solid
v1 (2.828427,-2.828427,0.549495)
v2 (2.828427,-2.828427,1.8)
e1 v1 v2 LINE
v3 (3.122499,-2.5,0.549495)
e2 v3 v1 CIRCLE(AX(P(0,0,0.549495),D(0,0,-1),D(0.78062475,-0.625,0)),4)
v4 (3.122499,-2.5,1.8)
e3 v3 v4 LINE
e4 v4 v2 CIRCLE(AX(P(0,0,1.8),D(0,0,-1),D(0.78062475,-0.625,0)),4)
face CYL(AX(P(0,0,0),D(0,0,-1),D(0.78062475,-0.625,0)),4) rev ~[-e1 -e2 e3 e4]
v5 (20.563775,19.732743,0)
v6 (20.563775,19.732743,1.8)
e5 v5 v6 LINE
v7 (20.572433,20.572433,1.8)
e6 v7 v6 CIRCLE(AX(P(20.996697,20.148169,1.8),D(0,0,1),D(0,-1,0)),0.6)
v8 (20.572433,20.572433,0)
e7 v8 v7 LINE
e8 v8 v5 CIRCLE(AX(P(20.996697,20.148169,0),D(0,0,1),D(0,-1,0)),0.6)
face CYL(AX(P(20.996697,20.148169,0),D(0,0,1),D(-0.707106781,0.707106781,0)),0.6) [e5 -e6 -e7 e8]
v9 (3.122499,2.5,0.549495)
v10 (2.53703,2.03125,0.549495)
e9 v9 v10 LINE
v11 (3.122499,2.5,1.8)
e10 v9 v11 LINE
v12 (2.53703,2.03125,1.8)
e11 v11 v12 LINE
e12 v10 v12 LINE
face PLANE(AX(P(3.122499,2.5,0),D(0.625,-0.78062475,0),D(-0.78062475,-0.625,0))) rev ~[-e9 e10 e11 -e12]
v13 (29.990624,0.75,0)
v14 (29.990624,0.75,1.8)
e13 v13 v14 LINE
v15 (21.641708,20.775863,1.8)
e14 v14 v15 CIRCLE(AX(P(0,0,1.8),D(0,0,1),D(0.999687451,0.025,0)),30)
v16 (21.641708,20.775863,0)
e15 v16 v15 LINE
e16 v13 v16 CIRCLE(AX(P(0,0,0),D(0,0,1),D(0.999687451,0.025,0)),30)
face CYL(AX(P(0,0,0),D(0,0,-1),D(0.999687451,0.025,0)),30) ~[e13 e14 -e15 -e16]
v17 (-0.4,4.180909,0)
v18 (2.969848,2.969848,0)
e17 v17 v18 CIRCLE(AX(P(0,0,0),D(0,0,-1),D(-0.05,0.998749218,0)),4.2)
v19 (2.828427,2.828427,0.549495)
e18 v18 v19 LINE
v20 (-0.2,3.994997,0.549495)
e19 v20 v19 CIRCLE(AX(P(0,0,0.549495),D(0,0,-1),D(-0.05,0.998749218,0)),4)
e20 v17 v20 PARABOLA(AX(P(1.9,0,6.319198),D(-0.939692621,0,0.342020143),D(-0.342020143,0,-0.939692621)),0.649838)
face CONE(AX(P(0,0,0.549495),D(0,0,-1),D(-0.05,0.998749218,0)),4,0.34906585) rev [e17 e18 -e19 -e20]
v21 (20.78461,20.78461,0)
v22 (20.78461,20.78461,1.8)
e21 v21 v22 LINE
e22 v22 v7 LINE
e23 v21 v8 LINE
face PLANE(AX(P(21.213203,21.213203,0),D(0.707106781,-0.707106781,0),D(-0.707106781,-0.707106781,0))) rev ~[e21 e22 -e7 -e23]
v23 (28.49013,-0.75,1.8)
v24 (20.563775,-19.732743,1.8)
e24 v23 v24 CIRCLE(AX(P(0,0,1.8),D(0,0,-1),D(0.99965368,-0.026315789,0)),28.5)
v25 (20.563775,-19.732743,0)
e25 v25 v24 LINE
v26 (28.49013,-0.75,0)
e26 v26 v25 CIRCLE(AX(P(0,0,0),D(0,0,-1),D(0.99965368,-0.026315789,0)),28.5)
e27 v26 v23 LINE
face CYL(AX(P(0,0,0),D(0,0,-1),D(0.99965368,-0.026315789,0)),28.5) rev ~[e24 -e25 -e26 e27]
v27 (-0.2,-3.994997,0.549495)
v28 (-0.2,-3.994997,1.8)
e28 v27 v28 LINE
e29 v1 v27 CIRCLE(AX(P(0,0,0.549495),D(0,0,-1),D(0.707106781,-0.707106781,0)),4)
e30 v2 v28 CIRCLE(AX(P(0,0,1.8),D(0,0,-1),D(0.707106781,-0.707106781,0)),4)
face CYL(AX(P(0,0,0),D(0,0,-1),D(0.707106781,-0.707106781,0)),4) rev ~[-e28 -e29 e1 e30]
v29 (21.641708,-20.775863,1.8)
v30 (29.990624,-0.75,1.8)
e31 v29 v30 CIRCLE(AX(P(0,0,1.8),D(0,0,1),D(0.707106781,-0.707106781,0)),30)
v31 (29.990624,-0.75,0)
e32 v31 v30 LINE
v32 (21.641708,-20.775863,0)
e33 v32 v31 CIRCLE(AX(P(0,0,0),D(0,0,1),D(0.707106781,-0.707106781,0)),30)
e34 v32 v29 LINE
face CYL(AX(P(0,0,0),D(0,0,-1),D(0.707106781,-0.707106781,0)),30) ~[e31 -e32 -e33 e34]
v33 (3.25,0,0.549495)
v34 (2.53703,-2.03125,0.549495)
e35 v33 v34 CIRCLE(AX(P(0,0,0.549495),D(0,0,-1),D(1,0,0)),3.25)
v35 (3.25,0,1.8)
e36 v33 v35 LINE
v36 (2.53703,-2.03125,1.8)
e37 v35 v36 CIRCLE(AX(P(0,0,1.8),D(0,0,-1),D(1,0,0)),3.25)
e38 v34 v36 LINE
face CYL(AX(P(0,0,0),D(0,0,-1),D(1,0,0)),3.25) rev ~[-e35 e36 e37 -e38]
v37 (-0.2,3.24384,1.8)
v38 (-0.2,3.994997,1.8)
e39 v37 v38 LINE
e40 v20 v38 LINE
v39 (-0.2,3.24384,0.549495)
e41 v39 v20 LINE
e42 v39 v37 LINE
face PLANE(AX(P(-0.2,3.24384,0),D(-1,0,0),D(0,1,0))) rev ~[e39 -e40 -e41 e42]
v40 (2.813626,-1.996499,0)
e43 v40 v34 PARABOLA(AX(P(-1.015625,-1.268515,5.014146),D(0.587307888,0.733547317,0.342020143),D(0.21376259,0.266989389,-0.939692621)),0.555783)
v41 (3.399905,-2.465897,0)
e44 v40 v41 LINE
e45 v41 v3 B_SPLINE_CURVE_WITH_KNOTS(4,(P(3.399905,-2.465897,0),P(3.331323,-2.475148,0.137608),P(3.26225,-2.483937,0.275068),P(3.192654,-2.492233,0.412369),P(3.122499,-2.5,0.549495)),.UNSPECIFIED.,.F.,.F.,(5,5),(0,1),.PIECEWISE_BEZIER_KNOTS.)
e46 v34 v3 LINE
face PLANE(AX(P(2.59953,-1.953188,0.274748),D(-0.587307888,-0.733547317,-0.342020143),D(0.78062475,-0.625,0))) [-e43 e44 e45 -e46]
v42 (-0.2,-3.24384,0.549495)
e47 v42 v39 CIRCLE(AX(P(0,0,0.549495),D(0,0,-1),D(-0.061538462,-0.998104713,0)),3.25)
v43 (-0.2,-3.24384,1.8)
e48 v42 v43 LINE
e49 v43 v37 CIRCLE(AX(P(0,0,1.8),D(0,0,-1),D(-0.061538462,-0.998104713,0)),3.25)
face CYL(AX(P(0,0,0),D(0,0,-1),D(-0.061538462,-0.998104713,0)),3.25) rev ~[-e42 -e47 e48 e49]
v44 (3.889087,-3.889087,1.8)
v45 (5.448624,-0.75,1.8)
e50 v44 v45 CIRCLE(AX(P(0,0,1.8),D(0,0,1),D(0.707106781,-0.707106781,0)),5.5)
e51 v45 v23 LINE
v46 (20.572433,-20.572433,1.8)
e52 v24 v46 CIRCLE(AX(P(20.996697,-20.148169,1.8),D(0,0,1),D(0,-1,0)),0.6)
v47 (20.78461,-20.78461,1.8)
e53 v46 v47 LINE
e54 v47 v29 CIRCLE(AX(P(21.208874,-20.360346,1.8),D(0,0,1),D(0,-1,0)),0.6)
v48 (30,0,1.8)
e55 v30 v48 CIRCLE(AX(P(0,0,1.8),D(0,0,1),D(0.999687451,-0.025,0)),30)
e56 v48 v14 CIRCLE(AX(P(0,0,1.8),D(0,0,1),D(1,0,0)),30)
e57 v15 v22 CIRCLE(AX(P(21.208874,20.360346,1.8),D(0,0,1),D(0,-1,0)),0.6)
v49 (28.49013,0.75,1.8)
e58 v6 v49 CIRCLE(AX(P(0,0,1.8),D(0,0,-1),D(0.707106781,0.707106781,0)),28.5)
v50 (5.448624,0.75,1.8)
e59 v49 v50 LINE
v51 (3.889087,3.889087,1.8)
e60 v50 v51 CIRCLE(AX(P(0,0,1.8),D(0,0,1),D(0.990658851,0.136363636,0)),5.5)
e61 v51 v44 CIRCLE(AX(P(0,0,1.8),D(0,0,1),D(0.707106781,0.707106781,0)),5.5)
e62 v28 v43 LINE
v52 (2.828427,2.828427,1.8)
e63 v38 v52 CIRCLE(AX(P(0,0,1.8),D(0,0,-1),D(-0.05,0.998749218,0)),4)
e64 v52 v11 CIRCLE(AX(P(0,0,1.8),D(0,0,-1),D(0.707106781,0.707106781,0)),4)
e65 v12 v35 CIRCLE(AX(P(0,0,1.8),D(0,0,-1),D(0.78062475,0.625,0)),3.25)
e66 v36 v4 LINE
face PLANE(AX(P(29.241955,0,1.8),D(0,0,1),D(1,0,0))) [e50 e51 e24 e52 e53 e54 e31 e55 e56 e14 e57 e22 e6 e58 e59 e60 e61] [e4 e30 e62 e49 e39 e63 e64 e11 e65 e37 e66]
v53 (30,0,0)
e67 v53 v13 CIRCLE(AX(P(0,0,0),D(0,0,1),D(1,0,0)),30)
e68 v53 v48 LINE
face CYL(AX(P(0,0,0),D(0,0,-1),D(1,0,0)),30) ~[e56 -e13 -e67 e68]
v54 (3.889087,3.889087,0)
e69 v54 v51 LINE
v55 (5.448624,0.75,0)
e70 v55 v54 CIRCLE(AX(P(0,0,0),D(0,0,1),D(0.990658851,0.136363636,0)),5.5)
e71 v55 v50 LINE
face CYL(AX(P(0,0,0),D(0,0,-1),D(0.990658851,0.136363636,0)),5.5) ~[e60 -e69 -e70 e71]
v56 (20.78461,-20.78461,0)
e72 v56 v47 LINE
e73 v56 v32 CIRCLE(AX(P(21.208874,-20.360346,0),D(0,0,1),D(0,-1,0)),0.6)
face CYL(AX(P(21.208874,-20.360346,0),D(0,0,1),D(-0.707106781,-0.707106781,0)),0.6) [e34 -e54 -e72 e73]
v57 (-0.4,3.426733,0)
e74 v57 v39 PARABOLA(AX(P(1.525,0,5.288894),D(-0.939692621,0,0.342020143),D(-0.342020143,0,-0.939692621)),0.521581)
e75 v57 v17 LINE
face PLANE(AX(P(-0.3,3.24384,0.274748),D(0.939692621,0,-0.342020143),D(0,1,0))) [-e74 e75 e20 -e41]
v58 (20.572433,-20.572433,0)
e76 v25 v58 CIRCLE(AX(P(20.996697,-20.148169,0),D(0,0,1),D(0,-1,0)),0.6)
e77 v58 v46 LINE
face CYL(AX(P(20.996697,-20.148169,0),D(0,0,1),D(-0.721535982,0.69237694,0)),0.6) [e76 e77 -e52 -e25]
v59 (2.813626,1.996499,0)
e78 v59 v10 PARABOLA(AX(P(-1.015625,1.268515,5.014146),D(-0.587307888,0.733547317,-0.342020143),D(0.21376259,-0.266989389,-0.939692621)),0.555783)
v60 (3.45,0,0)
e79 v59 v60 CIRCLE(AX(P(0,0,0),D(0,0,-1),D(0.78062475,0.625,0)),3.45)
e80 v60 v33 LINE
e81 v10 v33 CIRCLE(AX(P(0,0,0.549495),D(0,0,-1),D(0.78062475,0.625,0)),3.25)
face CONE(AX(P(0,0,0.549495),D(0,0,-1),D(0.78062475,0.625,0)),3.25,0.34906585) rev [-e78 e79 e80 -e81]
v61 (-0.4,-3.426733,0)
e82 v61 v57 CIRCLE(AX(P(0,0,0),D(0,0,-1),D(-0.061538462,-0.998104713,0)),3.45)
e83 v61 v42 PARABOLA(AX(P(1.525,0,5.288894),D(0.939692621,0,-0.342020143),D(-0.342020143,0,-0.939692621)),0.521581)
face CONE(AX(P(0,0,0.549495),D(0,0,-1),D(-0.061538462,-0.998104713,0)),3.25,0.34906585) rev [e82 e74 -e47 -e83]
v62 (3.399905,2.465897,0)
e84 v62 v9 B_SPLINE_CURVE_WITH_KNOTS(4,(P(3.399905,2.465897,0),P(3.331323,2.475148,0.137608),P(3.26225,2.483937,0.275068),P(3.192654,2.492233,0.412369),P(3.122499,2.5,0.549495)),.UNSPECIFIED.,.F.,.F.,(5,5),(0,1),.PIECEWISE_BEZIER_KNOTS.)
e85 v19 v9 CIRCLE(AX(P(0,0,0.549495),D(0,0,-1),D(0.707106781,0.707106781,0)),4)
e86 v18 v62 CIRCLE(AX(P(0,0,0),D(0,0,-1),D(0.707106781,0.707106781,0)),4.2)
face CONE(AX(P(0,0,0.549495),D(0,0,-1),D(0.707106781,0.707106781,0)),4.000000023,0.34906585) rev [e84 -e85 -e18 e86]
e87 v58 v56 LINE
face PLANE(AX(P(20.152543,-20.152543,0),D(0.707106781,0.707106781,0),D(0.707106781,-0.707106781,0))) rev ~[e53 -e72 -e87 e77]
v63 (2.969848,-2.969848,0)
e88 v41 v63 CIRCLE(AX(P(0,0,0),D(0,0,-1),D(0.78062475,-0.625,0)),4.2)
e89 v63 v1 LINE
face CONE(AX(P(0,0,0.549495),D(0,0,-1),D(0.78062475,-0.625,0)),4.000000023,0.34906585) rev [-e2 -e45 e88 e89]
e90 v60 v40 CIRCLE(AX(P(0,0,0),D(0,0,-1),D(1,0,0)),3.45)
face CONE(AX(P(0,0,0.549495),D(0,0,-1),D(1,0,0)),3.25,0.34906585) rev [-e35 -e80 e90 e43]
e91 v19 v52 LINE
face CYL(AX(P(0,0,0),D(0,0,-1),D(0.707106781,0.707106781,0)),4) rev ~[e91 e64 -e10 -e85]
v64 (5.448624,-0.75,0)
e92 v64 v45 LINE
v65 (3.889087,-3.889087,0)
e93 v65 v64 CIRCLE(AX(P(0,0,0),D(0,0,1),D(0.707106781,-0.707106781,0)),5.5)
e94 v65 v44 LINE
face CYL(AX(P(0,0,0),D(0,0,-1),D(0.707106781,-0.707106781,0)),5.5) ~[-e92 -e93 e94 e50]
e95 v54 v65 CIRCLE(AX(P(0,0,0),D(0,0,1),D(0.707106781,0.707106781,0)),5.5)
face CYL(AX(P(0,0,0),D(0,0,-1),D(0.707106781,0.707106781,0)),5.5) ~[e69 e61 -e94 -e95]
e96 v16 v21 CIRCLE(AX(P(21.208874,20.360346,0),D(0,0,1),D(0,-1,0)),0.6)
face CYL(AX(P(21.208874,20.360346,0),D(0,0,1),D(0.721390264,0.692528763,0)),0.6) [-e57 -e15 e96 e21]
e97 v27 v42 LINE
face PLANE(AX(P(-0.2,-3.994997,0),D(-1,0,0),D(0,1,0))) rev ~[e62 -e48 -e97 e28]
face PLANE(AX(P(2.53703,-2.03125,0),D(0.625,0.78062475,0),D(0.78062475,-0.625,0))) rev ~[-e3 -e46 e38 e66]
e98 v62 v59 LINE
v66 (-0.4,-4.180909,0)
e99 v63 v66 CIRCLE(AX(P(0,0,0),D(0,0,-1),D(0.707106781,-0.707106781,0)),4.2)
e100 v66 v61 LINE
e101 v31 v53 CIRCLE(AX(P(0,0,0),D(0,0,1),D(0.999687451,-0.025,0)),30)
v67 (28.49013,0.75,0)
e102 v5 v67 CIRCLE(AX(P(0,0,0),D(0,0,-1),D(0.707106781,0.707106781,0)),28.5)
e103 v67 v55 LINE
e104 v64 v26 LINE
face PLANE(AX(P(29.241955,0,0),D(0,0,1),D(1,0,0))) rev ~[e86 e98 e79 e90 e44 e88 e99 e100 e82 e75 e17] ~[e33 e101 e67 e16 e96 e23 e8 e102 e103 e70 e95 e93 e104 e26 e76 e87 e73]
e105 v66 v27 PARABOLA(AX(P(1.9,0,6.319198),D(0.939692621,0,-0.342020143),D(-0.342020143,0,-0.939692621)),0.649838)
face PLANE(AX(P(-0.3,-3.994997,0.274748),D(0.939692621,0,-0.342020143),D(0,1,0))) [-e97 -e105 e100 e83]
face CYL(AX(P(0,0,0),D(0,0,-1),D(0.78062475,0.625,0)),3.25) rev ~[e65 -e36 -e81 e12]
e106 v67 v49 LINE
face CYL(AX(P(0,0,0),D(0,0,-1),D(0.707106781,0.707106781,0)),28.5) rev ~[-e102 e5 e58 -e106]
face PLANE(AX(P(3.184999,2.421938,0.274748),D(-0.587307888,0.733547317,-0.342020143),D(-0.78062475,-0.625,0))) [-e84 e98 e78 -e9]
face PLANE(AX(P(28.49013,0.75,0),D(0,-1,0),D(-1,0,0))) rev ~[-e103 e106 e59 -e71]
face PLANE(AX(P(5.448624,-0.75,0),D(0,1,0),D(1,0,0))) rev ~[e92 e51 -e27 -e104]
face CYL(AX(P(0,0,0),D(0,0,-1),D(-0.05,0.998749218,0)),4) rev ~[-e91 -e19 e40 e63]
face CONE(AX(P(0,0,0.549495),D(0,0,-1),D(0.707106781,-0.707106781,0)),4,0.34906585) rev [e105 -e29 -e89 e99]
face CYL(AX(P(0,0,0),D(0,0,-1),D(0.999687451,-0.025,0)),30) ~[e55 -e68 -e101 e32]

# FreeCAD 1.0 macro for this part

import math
import FreeCAD as App
import Part
import Sketcher

V = App.Vector


def edges_at(feature, points):
    """Names of the edges that pass closest to the given points."""
    edges = feature.Shape.Edges
    near = lambda p: min(range(len(edges)), key=lambda i: edges[i].distToShape(Part.Vertex(*p))[0])
    return sorted({f"Edge{near(p) + 1}" for p in points})

doc = App.newDocument("Part")
body = doc.addObject("PartDesign::Body", "Body")

sketch1 = body.newObject("Sketcher::SketchObject", "Sketch")
sketch1.AttachmentSupport = (doc.getObject("XY_Plane"), [""])
sketch1.MapMode = "FlatFace"
sketch1.addGeometry([
    Part.ArcOfCircle(Part.Circle(V(0, 0, 0), V(0, 0, 1), 30), math.radians(1.432544), math.radians(45)),
    Part.LineSegment(V(21.213203, 21.213203, 0), V(20.152543, 20.152543, 0)),
    Part.ArcOfCircle(Part.Circle(V(0, 0, 0), V(0, 0, 1), 28.5), math.radians(1.507958), math.radians(45)),
    Part.LineSegment(V(28.49013, 0.75, 0), V(5.448624, 0.75, 0)),
    Part.ArcOfCircle(Part.Circle(V(0, 0, 0), V(0, 0, 1), 5.5), math.radians(7.83748), math.radians(45)),
    Part.ArcOfCircle(Part.Circle(V(0, 0, 0), V(0, 0, 1), 5.5), math.radians(45), math.radians(315)),
    Part.ArcOfCircle(Part.Circle(V(0, 0, 0), V(0, 0, 1), 5.5), math.radians(-45), math.radians(-7.83748)),
    Part.LineSegment(V(5.448624, -0.75, 0), V(28.49013, -0.75, 0)),
    Part.ArcOfCircle(Part.Circle(V(0, 0, 0), V(0, 0, 1), 28.5), math.radians(-45), math.radians(-1.507958)),
    Part.LineSegment(V(20.152543, -20.152543, 0), V(21.213203, -21.213203, 0)),
    Part.ArcOfCircle(Part.Circle(V(0, 0, 0), V(0, 0, 1), 30), math.radians(-45), math.radians(-1.432544)),
    Part.ArcOfCircle(Part.Circle(V(0, 0, 0), V(0, 0, 1), 30), math.radians(-1.432544), math.radians(0)),
    Part.ArcOfCircle(Part.Circle(V(0, 0, 0), V(0, 0, 1), 30), math.radians(0), math.radians(1.432544)),
    Part.ArcOfCircle(Part.Circle(V(0, 0, 0), V(0, 0, 1), 4), math.radians(-45), math.radians(-38.682187)),
    Part.ArcOfCircle(Part.Circle(V(0, 0, 0), V(0, 0, 1), 4), math.radians(-92.865984), math.radians(-45)),
    Part.LineSegment(V(-0.2, -3.994997, 0), V(-0.2, -3.24384, 0)),
    Part.ArcOfCircle(Part.Circle(V(0, 0, 0), V(0, 0, 1), 3.25), math.radians(93.528123), math.radians(266.471877)),
    Part.LineSegment(V(-0.2, 3.24384, 0), V(-0.2, 3.994997, 0)),
    Part.ArcOfCircle(Part.Circle(V(0, 0, 0), V(0, 0, 1), 4), math.radians(45), math.radians(92.865984)),
    Part.ArcOfCircle(Part.Circle(V(0, 0, 0), V(0, 0, 1), 4), math.radians(38.682187), math.radians(45)),
    Part.LineSegment(V(3.122499, 2.5, 0), V(2.53703, 2.03125, 0)),
    Part.ArcOfCircle(Part.Circle(V(0, 0, 0), V(0, 0, 1), 3.25), math.radians(0), math.radians(38.682187)),
    Part.ArcOfCircle(Part.Circle(V(0, 0, 0), V(0, 0, 1), 3.25), math.radians(-38.682187), math.radians(0)),
    Part.LineSegment(V(2.53703, -2.03125, 0), V(3.122499, -2.5, 0)),
], False)
sketch1.addConstraint([
    Sketcher.Constraint("Coincident", 0, 2, 1, 1),
    Sketcher.Constraint("Coincident", 1, 2, 2, 2),
    Sketcher.Constraint("Coincident", 2, 1, 3, 1),
    Sketcher.Constraint("Coincident", 3, 2, 4, 1),
    Sketcher.Constraint("Tangent", 4, 2, 5, 1),
    Sketcher.Constraint("Tangent", 5, 2, 6, 1),
    Sketcher.Constraint("Coincident", 6, 2, 7, 1),
    Sketcher.Constraint("Coincident", 7, 2, 8, 2),
    Sketcher.Constraint("Coincident", 8, 1, 9, 1),
    Sketcher.Constraint("Coincident", 9, 2, 10, 1),
    Sketcher.Constraint("Tangent", 10, 2, 11, 1),
    Sketcher.Constraint("Tangent", 11, 2, 12, 1),
    Sketcher.Constraint("Tangent", 12, 2, 0, 1),
    Sketcher.Constraint("Tangent", 13, 1, 14, 2),
    Sketcher.Constraint("Coincident", 14, 1, 15, 1),
    Sketcher.Constraint("Coincident", 15, 2, 16, 2),
    Sketcher.Constraint("Coincident", 16, 1, 17, 1),
    Sketcher.Constraint("Coincident", 17, 2, 18, 2),
    Sketcher.Constraint("Tangent", 18, 1, 19, 2),
    Sketcher.Constraint("Coincident", 19, 1, 20, 1),
    Sketcher.Constraint("Coincident", 20, 2, 21, 2),
    Sketcher.Constraint("Tangent", 21, 1, 22, 2),
    Sketcher.Constraint("Coincident", 22, 1, 23, 1),
    Sketcher.Constraint("Coincident", 23, 2, 13, 2),
    Sketcher.Constraint("Horizontal", 3),
    Sketcher.Constraint("Horizontal", 7),
    Sketcher.Constraint("Vertical", 15),
    Sketcher.Constraint("Vertical", 17),
    Sketcher.Constraint("Coincident", 0, 3, -1, 1),
    Sketcher.Constraint("Coincident", 2, 3, -1, 1),
    Sketcher.Constraint("Coincident", 4, 3, -1, 1),
    Sketcher.Constraint("Coincident", 6, 3, -1, 1),
    Sketcher.Constraint("Coincident", 8, 3, -1, 1),
    Sketcher.Constraint("Coincident", 10, 3, -1, 1),
    Sketcher.Constraint("Coincident", 13, 3, -1, 1),
    Sketcher.Constraint("Coincident", 16, 3, -1, 1),
    Sketcher.Constraint("Coincident", 18, 3, -1, 1),
    Sketcher.Constraint("Coincident", 21, 3, -1, 1),
    Sketcher.Constraint("Equal", 2, 8),
    Sketcher.Constraint("Equal", 10, 11),
    Sketcher.Constraint("Equal", 13, 14),
    Sketcher.Constraint("Equal", 14, 18),
    Sketcher.Constraint("Equal", 18, 19),
    Sketcher.Constraint("Equal", 16, 21),
    Sketcher.Constraint("Equal", 21, 22),
    Sketcher.Constraint("PointOnObject", 11, 2, -1),
    Sketcher.Constraint("PointOnObject", 21, 1, -1),
    Sketcher.Constraint("Perpendicular", 1, 9),
    Sketcher.Constraint("Horizontal", 7, 2, 10, 2),
    Sketcher.Constraint("Horizontal", 3, 2, 12, 2),
    Sketcher.Constraint("Vertical", 4, 2, 5, 2),
    Sketcher.Constraint("Vertical", 3, 2, 6, 2),
    Sketcher.Constraint("Vertical", 1, 2, 8, 1),
    Sketcher.Constraint("Vertical", 0, 2, 9, 2),
    Sketcher.Constraint("Vertical", 15, 2, 16, 1),
    Sketcher.Constraint("Vertical", 13, 1, 18, 1),
    Sketcher.Constraint("Vertical", 20, 2, 22, 1),
    Sketcher.Constraint("Vertical", 19, 1, 23, 2),
    Sketcher.Constraint("Radius", 0, 30.0),
    Sketcher.Constraint("Radius", 13, 4.0),
    Sketcher.Constraint("Radius", 2, 28.5),
    Sketcher.Constraint("Radius", 4, 5.5),
    Sketcher.Constraint("Radius", 16, 3.25),
    Sketcher.Constraint("DistanceX", 14, 1, -1, 1, 0.2),
    Sketcher.Constraint("DistanceY", -1, 1, 19, 1, 2.5),
    Sketcher.Constraint("DistanceY", 6, 2, 3, 2, 1.5),
    Sketcher.Constraint("DistanceX", -1, 1, 20, 2, 2.53703),
    Sketcher.Constraint("DistanceX", 6, 2, 8, 1, 14.70392),
    Sketcher.Constraint("DistanceX", 13, 1, 5, 2, 1.06066),
    Sketcher.Constraint("DistanceY", 14, 1, 13, 1, 1.16657),
])
pad1 = body.newObject("PartDesign::Pad", "Pad")
pad1.Profile = sketch1
pad1.Length = 1.8
doc.recompute()

fillet = body.newObject("PartDesign::Fillet", "Fillet")
fillet.Base = (pad1, edges_at(pad1, [
    (21.213, -21.213, 0.9),
    (20.153, -20.153, 0.9),
    (21.213, 21.213, 0.9),
    (20.153, 20.153, 0.9),
]))
fillet.Radius = 0.6
doc.recompute()

chamfer = body.newObject("PartDesign::Chamfer", "Chamfer")
chamfer.Base = (fillet, edges_at(fillet, [
    (-3.25, 0, 0),
    (-0.2, 3.619, 0),
    (1.438, 3.733, 0),
    (3.067, 1.076, 0),
    (2.83, 2.266, 0),
    (2.83, -2.266, 0),
    (1.438, -3.733, 0),
    (-0.2, -3.619, 0),
]))
chamfer.ChamferType = "Two distances"
chamfer.Size = 0.2
chamfer.Size2 = 0.549495

doc.recompute()
